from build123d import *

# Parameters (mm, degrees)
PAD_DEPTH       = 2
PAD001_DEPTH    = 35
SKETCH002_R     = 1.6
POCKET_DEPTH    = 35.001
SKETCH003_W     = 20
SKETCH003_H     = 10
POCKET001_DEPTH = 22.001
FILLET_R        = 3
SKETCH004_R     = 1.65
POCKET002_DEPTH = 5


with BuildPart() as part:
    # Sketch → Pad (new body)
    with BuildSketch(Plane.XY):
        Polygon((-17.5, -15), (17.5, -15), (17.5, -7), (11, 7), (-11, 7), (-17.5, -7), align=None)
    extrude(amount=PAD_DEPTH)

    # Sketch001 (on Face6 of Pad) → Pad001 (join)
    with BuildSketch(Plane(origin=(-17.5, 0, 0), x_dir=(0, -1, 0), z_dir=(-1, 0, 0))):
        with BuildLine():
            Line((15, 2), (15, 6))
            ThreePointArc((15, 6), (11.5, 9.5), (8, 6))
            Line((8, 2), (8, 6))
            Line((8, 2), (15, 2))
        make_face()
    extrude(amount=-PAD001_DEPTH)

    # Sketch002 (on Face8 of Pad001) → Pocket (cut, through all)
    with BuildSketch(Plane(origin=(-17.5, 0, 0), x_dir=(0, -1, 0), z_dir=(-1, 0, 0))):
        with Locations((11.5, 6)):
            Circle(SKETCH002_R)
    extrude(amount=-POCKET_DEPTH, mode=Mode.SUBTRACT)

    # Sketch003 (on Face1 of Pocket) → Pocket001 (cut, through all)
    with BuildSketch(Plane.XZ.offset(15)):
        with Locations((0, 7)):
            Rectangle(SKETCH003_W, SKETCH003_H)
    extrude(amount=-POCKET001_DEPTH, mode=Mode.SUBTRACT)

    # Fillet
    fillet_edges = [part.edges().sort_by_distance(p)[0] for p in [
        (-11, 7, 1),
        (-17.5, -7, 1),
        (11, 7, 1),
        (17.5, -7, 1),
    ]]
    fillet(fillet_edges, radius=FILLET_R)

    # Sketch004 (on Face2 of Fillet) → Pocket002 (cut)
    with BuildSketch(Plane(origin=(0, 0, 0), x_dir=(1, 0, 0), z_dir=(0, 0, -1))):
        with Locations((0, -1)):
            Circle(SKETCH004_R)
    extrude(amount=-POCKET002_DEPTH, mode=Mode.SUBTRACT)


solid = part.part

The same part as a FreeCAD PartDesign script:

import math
import FreeCAD as App
import Part
import Sketcher
Q = App.Units.Quantity


def edges_at(feature, points):
    """Names of the edges that pass closest to the given points."""
    edges = feature.Shape.Edges
    near = lambda p: min(range(len(edges)), key=lambda i: edges[i].distToShape(Part.Vertex(*p))[0])
    return sorted({f"Edge{near(p) + 1}" for p in points})


def add_polygon(sketch, points):
    """Adds a closed chain of lines whose ends are joined by coincident constraints."""
    first, n = sketch.GeometryCount, len(points)
    for a, b in zip(points, points[1:] + points[:1]):
        sketch.addGeometry(Part.LineSegment(App.Vector(*a, 0), App.Vector(*b, 0)), False)
    for i in range(n):
        sketch.addConstraint(Sketcher.Constraint("Coincident", first + i, 2, first + (i + 1) % n, 1))

doc = App.newDocument("Part")
body = doc.addObject("PartDesign::Body", "Body")

sketch1 = doc.addObject("Sketcher::SketchObject", "Sketch")
body.addObject(sketch1)
sketch1.AttachmentSupport = (doc.XY_Plane, [""])
sketch1.MapMode = "FlatFace"
add_polygon(sketch1, [(-18, -15), (18, -15), (18, -7), (11, 7), (-11, 7), (-18, -7)])
sketch1.addConstraint([
    Sketcher.Constraint("Horizontal", 0),
    Sketcher.Constraint("Vertical", 1),
    Sketcher.Constraint("Horizontal", 3),
    Sketcher.Constraint("Vertical", 5),
    Sketcher.Constraint("Symmetric", 1, 2, 4, 2, -2),
    Sketcher.Constraint("Equal", 2, 4),
    Sketcher.Constraint("DistanceX", 0, 1, 0, 2, Q("35 mm")),
    Sketcher.Constraint("DistanceX", 3, 2, 3, 1, Q("22 mm")),
    Sketcher.Constraint("DistanceY", 1, 1, 1, 2, Q("8 mm")),
    Sketcher.Constraint("DistanceY", 0, 2, -1, 1, Q("15 mm")),
    Sketcher.Constraint("DistanceY", -1, 1, 2, 2, Q("7 mm")),
])
pad1 = doc.addObject("PartDesign::Pad", "Pad")
body.addObject(pad1)
pad1.Profile = sketch1
pad1.Length = 2

sketch2 = doc.addObject("Sketcher::SketchObject", "Sketch001")
body.addObject(sketch2)
sketch2.AttachmentSupport = (doc.YZ_Plane, [""])
sketch2.MapMode = "FlatFace"
sketch2.AttachmentOffset = App.Placement(App.Vector(0, 0, -17.5), App.Rotation())
sketch2.addGeometry([
    Part.LineSegment(App.Vector(-15, 2, 0), App.Vector(-15, 6, 0)),
    Part.ArcOfCircle(Part.Circle(App.Vector(-11.5, 6, 0), App.Vector(0, 0, 1), 3.5), math.radians(0), math.radians(180)),
    Part.LineSegment(App.Vector(-8, 6, 0), App.Vector(-8, 2, 0)),
    Part.LineSegment(App.Vector(-8, 2, 0), App.Vector(-15, 2, 0)),
], False)
sketch2.addConstraint([
    Sketcher.Constraint("Tangent", 0, 2, 1, 2),
    Sketcher.Constraint("Tangent", 1, 1, 2, 1),
    Sketcher.Constraint("Coincident", 2, 2, 3, 1),
    Sketcher.Constraint("Coincident", 3, 2, 0, 1),
    Sketcher.Constraint("Vertical", 0),
    Sketcher.Constraint("Vertical", 2),
    Sketcher.Constraint("Horizontal", 3),
    Sketcher.Constraint("Radius", 1, Q("3.5 mm")),
    Sketcher.Constraint("DistanceY", 0, 1, 0, 2, Q("4 mm")),
    Sketcher.Constraint("DistanceY", -1, 1, 1, 3, Q("6 mm")),
    Sketcher.Constraint("DistanceX", 0, 2, -1, 1, Q("15 mm")),
])
pad2 = doc.addObject("PartDesign::Pad", "Pad001")
body.addObject(pad2)
pad2.Profile = sketch2
pad2.Length = 35

sketch3 = doc.addObject("Sketcher::SketchObject", "Sketch002")
body.addObject(sketch3)
sketch3.AttachmentSupport = (doc.YZ_Plane, [""])
sketch3.MapMode = "FlatFace"
sketch3.AttachmentOffset = App.Placement(App.Vector(0, 0, -17.5), App.Rotation())
sketch3.addGeometry(Part.Circle(App.Vector(-11.5, 6, 0), App.Vector(0, 0, 1), 1.6), False)
sketch3.addConstraint([
    Sketcher.Constraint("Diameter", 0, Q("3.2 mm")),
    Sketcher.Constraint("DistanceY", -1, 1, 0, 3, Q("6 mm")),
    Sketcher.Constraint("DistanceX", 0, 3, -1, 1, Q("11.5 mm")),
])
pocket1 = doc.addObject("PartDesign::Pocket", "Pocket")
body.addObject(pocket1)
pocket1.Profile = sketch3
pocket1.Type = "ThroughAll"
pocket1.Reversed = True

sketch4 = doc.addObject("Sketcher::SketchObject", "Sketch003")
body.addObject(sketch4)
sketch4.AttachmentSupport = (doc.XZ_Plane, [""])
sketch4.MapMode = "FlatFace"
sketch4.AttachmentOffset = App.Placement(App.Vector(0, 0, 15), App.Rotation())
add_polygon(sketch4, [(-10, 12), (-10, 2), (10, 2), (10, 12)])
sketch4.addConstraint([
    Sketcher.Constraint("Vertical", 0),
    Sketcher.Constraint("Horizontal", 1),
    Sketcher.Constraint("Vertical", 2),
    Sketcher.Constraint("Horizontal", 3),
    Sketcher.Constraint("DistanceX", 1, 1, 1, 2, Q("20 mm")),
    Sketcher.Constraint("DistanceY", 0, 2, 0, 1, Q("10 mm")),
    Sketcher.Constraint("DistanceX", 0, 2, -1, 1, Q("10 mm")),
    Sketcher.Constraint("DistanceY", -1, 1, 0, 2, Q("2 mm")),
])
pocket2 = doc.addObject("PartDesign::Pocket", "Pocket001")
body.addObject(pocket2)
pocket2.Profile = sketch4
pocket2.Type = "ThroughAll"
doc.recompute()

fillet = doc.addObject("PartDesign::Fillet", "Fillet")
body.addObject(fillet)
fillet.Base = (pocket2, edges_at(pocket2, [
    (-11, 7, 1),
    (-17.5, -7, 1),
    (11, 7, 1),
    (17.5, -7, 1),
]))
fillet.Radius = 3

sketch5 = doc.addObject("Sketcher::SketchObject", "Sketch004")
body.addObject(sketch5)
sketch5.AttachmentSupport = (doc.XY_Plane, [""])
sketch5.MapMode = "FlatFace"
sketch5.addGeometry(Part.Circle(App.Vector(0, 1, 0), App.Vector(0, 0, 1), 1.6), False)
sketch5.addConstraint([
    Sketcher.Constraint("PointOnObject", 0, 3, -2),
    Sketcher.Constraint("Diameter", 0, Q("3.3 mm")),
    Sketcher.Constraint("DistanceY", -1, 1, 0, 3, Q("1 mm")),
])
pocket3 = doc.addObject("PartDesign::Pocket", "Pocket002")
body.addObject(pocket3)
pocket3.Profile = sketch5
pocket3.Length = 5
pocket3.Reversed = True

doc.recompute()
